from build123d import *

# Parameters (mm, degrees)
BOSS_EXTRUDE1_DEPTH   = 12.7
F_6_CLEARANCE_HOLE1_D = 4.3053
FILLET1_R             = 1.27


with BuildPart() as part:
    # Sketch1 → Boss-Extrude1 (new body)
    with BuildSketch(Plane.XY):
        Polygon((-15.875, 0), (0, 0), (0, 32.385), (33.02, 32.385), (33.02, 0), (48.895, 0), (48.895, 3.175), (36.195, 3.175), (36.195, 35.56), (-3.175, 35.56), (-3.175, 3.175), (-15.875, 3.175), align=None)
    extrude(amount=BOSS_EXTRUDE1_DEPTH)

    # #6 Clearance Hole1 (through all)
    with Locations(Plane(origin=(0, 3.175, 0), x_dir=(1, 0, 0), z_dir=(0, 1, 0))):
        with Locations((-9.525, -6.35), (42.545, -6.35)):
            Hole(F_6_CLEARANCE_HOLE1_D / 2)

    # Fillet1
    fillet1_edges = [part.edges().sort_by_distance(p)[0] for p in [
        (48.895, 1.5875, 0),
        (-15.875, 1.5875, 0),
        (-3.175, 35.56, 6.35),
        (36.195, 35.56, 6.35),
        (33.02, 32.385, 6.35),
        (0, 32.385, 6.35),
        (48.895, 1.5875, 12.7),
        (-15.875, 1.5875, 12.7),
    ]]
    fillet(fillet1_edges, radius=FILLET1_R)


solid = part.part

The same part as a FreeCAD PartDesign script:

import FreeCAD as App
import Part
import Sketcher

V = App.Vector
Q = App.Units.Quantity


def edges_at(feature, points):
    """Names of the edges that pass closest to the given points."""
    edges = feature.Shape.Edges
    near = lambda p: min(range(len(edges)), key=lambda i: edges[i].distToShape(Part.Vertex(*p))[0])
    return sorted({f"Edge{near(p) + 1}" for p in points})


def add_polygon(sketch, points):
    """Adds a closed chain of lines whose ends are joined by coincident constraints."""
    first, n = sketch.GeometryCount, len(points)
    for a, b in zip(points, points[1:] + points[:1]):
        sketch.addGeometry(Part.LineSegment(App.Vector(*a, 0), App.Vector(*b, 0)), False)
    for i in range(n):
        sketch.addConstraint(Sketcher.Constraint("Coincident", first + i, 2, first + (i + 1) % n, 1))

doc = App.newDocument("Part")
body = doc.addObject("PartDesign::Body", "Body")

# Sketch on XY plane
sketch1 = body.newObject("Sketcher::SketchObject", "Sketch")
sketch1.AttachmentSupport = (doc.getObject("XY_Plane"), [""])
sketch1.MapMode = "FlatFace"
add_polygon(sketch1, [(-15.9, 0), (0, 0), (0, 32.4), (33, 32.4), (33, 0), (48.9, 0), (48.9, 3.2), (36.2, 3.2), (36.2, 35.6), (-3.2, 35.6), (-3.2, 3.2), (-15.9, 3.2)])  # lines 0-11
sketch1.addConstraint([
    Sketcher.Constraint("Horizontal", 0),
    Sketcher.Constraint("Vertical", 1),
    Sketcher.Constraint("Horizontal", 2),
    Sketcher.Constraint("Vertical", 3),
    Sketcher.Constraint("Horizontal", 4),
    Sketcher.Constraint("Vertical", 5),
    Sketcher.Constraint("Horizontal", 6),
    Sketcher.Constraint("Vertical", 7),
    Sketcher.Constraint("Horizontal", 8),
    Sketcher.Constraint("Vertical", 9),
    Sketcher.Constraint("Horizontal", 10),
    Sketcher.Constraint("Vertical", 11),
    Sketcher.Constraint("Coincident", 0, 2, -1, 1),
    Sketcher.Constraint("PointOnObject", 3, 2, -1),
    Sketcher.Constraint("Horizontal", 6, 2, 9, 2),
    Sketcher.Constraint("Equal", 0, 4),
    Sketcher.Constraint("Equal", 6, 10),
    Sketcher.Constraint("Equal", 3, 7),
    Sketcher.Constraint("DistanceX", 2, 1, 2, 2, Q("1.3 in")),
    Sketcher.Constraint("DistanceX", 6, 2, 6, 1, Q("0.5 in")),
    Sketcher.Constraint("DistanceX", 8, 2, 8, 1, Q("1.55 in")),
    Sketcher.Constraint("DistanceY", -1, 1, 7, 2, Q("1.4 in")),
    Sketcher.Constraint("DistanceY", 1, 1, 1, 2, Q("1.275 in")),
])
pad1 = body.newObject("PartDesign::Pad", "Pad")
pad1.Profile = sketch1
pad1.Length = Q("0.5 in")

# Sketch on XZ plane
sketch2 = body.newObject("Sketcher::SketchObject", "Sketch001")
sketch2.AttachmentSupport = (doc.getObject("XZ_Plane"), [""])
sketch2.MapMode = "FlatFace"
sketch2.AttachmentOffset = App.Placement(V(0, 0, -0.125 * 25.4), App.Rotation())
sketch2.addGeometry([
    Part.Circle(V(-9.5, 6.3, 0), V(0, 0, 1), 2.2),
    Part.Circle(V(42.5, 6.3, 0), V(0, 0, 1), 2.2),
], False)
sketch2.addConstraint([
    Sketcher.Constraint("Equal", 0, 1),
    Sketcher.Constraint("Horizontal", 0, 3, 1, 3),
    Sketcher.Constraint("Diameter", 0, Q("0.1695 in")),
    Sketcher.Constraint("DistanceY", -1, 1, 0, 3, Q("0.25 in")),
    Sketcher.Constraint("DistanceX", 0, 3, 1, 3, Q("2.05 in")),
    Sketcher.Constraint("DistanceX", 0, 3, -1, 1, Q("0.375 in")),
])
doc.recompute()
hole = body.newObject("PartDesign::Hole", "Hole")
hole.Profile = sketch2
hole.ThreadType = "None"
hole.Diameter = Q("0.1695 in")
hole.DepthType = "ThroughAll"
hole.Reversed = True
doc.recompute()

fillet = body.newObject("PartDesign::Fillet", "Fillet")
fillet.Base = (hole, edges_at(hole, [
    (48.895, 1.587, 0),
    (-15.875, 1.587, 0),
    (-3.175, 35.56, 6.35),
    (36.195, 35.56, 6.35),
    (33.02, 32.385, 6.35),
    (0, 32.385, 6.35),
    (48.895, 1.587, 12.7),
    (-15.875, 1.587, 12.7),
]))
fillet.Radius = Q("0.05 in")

doc.recompute()
